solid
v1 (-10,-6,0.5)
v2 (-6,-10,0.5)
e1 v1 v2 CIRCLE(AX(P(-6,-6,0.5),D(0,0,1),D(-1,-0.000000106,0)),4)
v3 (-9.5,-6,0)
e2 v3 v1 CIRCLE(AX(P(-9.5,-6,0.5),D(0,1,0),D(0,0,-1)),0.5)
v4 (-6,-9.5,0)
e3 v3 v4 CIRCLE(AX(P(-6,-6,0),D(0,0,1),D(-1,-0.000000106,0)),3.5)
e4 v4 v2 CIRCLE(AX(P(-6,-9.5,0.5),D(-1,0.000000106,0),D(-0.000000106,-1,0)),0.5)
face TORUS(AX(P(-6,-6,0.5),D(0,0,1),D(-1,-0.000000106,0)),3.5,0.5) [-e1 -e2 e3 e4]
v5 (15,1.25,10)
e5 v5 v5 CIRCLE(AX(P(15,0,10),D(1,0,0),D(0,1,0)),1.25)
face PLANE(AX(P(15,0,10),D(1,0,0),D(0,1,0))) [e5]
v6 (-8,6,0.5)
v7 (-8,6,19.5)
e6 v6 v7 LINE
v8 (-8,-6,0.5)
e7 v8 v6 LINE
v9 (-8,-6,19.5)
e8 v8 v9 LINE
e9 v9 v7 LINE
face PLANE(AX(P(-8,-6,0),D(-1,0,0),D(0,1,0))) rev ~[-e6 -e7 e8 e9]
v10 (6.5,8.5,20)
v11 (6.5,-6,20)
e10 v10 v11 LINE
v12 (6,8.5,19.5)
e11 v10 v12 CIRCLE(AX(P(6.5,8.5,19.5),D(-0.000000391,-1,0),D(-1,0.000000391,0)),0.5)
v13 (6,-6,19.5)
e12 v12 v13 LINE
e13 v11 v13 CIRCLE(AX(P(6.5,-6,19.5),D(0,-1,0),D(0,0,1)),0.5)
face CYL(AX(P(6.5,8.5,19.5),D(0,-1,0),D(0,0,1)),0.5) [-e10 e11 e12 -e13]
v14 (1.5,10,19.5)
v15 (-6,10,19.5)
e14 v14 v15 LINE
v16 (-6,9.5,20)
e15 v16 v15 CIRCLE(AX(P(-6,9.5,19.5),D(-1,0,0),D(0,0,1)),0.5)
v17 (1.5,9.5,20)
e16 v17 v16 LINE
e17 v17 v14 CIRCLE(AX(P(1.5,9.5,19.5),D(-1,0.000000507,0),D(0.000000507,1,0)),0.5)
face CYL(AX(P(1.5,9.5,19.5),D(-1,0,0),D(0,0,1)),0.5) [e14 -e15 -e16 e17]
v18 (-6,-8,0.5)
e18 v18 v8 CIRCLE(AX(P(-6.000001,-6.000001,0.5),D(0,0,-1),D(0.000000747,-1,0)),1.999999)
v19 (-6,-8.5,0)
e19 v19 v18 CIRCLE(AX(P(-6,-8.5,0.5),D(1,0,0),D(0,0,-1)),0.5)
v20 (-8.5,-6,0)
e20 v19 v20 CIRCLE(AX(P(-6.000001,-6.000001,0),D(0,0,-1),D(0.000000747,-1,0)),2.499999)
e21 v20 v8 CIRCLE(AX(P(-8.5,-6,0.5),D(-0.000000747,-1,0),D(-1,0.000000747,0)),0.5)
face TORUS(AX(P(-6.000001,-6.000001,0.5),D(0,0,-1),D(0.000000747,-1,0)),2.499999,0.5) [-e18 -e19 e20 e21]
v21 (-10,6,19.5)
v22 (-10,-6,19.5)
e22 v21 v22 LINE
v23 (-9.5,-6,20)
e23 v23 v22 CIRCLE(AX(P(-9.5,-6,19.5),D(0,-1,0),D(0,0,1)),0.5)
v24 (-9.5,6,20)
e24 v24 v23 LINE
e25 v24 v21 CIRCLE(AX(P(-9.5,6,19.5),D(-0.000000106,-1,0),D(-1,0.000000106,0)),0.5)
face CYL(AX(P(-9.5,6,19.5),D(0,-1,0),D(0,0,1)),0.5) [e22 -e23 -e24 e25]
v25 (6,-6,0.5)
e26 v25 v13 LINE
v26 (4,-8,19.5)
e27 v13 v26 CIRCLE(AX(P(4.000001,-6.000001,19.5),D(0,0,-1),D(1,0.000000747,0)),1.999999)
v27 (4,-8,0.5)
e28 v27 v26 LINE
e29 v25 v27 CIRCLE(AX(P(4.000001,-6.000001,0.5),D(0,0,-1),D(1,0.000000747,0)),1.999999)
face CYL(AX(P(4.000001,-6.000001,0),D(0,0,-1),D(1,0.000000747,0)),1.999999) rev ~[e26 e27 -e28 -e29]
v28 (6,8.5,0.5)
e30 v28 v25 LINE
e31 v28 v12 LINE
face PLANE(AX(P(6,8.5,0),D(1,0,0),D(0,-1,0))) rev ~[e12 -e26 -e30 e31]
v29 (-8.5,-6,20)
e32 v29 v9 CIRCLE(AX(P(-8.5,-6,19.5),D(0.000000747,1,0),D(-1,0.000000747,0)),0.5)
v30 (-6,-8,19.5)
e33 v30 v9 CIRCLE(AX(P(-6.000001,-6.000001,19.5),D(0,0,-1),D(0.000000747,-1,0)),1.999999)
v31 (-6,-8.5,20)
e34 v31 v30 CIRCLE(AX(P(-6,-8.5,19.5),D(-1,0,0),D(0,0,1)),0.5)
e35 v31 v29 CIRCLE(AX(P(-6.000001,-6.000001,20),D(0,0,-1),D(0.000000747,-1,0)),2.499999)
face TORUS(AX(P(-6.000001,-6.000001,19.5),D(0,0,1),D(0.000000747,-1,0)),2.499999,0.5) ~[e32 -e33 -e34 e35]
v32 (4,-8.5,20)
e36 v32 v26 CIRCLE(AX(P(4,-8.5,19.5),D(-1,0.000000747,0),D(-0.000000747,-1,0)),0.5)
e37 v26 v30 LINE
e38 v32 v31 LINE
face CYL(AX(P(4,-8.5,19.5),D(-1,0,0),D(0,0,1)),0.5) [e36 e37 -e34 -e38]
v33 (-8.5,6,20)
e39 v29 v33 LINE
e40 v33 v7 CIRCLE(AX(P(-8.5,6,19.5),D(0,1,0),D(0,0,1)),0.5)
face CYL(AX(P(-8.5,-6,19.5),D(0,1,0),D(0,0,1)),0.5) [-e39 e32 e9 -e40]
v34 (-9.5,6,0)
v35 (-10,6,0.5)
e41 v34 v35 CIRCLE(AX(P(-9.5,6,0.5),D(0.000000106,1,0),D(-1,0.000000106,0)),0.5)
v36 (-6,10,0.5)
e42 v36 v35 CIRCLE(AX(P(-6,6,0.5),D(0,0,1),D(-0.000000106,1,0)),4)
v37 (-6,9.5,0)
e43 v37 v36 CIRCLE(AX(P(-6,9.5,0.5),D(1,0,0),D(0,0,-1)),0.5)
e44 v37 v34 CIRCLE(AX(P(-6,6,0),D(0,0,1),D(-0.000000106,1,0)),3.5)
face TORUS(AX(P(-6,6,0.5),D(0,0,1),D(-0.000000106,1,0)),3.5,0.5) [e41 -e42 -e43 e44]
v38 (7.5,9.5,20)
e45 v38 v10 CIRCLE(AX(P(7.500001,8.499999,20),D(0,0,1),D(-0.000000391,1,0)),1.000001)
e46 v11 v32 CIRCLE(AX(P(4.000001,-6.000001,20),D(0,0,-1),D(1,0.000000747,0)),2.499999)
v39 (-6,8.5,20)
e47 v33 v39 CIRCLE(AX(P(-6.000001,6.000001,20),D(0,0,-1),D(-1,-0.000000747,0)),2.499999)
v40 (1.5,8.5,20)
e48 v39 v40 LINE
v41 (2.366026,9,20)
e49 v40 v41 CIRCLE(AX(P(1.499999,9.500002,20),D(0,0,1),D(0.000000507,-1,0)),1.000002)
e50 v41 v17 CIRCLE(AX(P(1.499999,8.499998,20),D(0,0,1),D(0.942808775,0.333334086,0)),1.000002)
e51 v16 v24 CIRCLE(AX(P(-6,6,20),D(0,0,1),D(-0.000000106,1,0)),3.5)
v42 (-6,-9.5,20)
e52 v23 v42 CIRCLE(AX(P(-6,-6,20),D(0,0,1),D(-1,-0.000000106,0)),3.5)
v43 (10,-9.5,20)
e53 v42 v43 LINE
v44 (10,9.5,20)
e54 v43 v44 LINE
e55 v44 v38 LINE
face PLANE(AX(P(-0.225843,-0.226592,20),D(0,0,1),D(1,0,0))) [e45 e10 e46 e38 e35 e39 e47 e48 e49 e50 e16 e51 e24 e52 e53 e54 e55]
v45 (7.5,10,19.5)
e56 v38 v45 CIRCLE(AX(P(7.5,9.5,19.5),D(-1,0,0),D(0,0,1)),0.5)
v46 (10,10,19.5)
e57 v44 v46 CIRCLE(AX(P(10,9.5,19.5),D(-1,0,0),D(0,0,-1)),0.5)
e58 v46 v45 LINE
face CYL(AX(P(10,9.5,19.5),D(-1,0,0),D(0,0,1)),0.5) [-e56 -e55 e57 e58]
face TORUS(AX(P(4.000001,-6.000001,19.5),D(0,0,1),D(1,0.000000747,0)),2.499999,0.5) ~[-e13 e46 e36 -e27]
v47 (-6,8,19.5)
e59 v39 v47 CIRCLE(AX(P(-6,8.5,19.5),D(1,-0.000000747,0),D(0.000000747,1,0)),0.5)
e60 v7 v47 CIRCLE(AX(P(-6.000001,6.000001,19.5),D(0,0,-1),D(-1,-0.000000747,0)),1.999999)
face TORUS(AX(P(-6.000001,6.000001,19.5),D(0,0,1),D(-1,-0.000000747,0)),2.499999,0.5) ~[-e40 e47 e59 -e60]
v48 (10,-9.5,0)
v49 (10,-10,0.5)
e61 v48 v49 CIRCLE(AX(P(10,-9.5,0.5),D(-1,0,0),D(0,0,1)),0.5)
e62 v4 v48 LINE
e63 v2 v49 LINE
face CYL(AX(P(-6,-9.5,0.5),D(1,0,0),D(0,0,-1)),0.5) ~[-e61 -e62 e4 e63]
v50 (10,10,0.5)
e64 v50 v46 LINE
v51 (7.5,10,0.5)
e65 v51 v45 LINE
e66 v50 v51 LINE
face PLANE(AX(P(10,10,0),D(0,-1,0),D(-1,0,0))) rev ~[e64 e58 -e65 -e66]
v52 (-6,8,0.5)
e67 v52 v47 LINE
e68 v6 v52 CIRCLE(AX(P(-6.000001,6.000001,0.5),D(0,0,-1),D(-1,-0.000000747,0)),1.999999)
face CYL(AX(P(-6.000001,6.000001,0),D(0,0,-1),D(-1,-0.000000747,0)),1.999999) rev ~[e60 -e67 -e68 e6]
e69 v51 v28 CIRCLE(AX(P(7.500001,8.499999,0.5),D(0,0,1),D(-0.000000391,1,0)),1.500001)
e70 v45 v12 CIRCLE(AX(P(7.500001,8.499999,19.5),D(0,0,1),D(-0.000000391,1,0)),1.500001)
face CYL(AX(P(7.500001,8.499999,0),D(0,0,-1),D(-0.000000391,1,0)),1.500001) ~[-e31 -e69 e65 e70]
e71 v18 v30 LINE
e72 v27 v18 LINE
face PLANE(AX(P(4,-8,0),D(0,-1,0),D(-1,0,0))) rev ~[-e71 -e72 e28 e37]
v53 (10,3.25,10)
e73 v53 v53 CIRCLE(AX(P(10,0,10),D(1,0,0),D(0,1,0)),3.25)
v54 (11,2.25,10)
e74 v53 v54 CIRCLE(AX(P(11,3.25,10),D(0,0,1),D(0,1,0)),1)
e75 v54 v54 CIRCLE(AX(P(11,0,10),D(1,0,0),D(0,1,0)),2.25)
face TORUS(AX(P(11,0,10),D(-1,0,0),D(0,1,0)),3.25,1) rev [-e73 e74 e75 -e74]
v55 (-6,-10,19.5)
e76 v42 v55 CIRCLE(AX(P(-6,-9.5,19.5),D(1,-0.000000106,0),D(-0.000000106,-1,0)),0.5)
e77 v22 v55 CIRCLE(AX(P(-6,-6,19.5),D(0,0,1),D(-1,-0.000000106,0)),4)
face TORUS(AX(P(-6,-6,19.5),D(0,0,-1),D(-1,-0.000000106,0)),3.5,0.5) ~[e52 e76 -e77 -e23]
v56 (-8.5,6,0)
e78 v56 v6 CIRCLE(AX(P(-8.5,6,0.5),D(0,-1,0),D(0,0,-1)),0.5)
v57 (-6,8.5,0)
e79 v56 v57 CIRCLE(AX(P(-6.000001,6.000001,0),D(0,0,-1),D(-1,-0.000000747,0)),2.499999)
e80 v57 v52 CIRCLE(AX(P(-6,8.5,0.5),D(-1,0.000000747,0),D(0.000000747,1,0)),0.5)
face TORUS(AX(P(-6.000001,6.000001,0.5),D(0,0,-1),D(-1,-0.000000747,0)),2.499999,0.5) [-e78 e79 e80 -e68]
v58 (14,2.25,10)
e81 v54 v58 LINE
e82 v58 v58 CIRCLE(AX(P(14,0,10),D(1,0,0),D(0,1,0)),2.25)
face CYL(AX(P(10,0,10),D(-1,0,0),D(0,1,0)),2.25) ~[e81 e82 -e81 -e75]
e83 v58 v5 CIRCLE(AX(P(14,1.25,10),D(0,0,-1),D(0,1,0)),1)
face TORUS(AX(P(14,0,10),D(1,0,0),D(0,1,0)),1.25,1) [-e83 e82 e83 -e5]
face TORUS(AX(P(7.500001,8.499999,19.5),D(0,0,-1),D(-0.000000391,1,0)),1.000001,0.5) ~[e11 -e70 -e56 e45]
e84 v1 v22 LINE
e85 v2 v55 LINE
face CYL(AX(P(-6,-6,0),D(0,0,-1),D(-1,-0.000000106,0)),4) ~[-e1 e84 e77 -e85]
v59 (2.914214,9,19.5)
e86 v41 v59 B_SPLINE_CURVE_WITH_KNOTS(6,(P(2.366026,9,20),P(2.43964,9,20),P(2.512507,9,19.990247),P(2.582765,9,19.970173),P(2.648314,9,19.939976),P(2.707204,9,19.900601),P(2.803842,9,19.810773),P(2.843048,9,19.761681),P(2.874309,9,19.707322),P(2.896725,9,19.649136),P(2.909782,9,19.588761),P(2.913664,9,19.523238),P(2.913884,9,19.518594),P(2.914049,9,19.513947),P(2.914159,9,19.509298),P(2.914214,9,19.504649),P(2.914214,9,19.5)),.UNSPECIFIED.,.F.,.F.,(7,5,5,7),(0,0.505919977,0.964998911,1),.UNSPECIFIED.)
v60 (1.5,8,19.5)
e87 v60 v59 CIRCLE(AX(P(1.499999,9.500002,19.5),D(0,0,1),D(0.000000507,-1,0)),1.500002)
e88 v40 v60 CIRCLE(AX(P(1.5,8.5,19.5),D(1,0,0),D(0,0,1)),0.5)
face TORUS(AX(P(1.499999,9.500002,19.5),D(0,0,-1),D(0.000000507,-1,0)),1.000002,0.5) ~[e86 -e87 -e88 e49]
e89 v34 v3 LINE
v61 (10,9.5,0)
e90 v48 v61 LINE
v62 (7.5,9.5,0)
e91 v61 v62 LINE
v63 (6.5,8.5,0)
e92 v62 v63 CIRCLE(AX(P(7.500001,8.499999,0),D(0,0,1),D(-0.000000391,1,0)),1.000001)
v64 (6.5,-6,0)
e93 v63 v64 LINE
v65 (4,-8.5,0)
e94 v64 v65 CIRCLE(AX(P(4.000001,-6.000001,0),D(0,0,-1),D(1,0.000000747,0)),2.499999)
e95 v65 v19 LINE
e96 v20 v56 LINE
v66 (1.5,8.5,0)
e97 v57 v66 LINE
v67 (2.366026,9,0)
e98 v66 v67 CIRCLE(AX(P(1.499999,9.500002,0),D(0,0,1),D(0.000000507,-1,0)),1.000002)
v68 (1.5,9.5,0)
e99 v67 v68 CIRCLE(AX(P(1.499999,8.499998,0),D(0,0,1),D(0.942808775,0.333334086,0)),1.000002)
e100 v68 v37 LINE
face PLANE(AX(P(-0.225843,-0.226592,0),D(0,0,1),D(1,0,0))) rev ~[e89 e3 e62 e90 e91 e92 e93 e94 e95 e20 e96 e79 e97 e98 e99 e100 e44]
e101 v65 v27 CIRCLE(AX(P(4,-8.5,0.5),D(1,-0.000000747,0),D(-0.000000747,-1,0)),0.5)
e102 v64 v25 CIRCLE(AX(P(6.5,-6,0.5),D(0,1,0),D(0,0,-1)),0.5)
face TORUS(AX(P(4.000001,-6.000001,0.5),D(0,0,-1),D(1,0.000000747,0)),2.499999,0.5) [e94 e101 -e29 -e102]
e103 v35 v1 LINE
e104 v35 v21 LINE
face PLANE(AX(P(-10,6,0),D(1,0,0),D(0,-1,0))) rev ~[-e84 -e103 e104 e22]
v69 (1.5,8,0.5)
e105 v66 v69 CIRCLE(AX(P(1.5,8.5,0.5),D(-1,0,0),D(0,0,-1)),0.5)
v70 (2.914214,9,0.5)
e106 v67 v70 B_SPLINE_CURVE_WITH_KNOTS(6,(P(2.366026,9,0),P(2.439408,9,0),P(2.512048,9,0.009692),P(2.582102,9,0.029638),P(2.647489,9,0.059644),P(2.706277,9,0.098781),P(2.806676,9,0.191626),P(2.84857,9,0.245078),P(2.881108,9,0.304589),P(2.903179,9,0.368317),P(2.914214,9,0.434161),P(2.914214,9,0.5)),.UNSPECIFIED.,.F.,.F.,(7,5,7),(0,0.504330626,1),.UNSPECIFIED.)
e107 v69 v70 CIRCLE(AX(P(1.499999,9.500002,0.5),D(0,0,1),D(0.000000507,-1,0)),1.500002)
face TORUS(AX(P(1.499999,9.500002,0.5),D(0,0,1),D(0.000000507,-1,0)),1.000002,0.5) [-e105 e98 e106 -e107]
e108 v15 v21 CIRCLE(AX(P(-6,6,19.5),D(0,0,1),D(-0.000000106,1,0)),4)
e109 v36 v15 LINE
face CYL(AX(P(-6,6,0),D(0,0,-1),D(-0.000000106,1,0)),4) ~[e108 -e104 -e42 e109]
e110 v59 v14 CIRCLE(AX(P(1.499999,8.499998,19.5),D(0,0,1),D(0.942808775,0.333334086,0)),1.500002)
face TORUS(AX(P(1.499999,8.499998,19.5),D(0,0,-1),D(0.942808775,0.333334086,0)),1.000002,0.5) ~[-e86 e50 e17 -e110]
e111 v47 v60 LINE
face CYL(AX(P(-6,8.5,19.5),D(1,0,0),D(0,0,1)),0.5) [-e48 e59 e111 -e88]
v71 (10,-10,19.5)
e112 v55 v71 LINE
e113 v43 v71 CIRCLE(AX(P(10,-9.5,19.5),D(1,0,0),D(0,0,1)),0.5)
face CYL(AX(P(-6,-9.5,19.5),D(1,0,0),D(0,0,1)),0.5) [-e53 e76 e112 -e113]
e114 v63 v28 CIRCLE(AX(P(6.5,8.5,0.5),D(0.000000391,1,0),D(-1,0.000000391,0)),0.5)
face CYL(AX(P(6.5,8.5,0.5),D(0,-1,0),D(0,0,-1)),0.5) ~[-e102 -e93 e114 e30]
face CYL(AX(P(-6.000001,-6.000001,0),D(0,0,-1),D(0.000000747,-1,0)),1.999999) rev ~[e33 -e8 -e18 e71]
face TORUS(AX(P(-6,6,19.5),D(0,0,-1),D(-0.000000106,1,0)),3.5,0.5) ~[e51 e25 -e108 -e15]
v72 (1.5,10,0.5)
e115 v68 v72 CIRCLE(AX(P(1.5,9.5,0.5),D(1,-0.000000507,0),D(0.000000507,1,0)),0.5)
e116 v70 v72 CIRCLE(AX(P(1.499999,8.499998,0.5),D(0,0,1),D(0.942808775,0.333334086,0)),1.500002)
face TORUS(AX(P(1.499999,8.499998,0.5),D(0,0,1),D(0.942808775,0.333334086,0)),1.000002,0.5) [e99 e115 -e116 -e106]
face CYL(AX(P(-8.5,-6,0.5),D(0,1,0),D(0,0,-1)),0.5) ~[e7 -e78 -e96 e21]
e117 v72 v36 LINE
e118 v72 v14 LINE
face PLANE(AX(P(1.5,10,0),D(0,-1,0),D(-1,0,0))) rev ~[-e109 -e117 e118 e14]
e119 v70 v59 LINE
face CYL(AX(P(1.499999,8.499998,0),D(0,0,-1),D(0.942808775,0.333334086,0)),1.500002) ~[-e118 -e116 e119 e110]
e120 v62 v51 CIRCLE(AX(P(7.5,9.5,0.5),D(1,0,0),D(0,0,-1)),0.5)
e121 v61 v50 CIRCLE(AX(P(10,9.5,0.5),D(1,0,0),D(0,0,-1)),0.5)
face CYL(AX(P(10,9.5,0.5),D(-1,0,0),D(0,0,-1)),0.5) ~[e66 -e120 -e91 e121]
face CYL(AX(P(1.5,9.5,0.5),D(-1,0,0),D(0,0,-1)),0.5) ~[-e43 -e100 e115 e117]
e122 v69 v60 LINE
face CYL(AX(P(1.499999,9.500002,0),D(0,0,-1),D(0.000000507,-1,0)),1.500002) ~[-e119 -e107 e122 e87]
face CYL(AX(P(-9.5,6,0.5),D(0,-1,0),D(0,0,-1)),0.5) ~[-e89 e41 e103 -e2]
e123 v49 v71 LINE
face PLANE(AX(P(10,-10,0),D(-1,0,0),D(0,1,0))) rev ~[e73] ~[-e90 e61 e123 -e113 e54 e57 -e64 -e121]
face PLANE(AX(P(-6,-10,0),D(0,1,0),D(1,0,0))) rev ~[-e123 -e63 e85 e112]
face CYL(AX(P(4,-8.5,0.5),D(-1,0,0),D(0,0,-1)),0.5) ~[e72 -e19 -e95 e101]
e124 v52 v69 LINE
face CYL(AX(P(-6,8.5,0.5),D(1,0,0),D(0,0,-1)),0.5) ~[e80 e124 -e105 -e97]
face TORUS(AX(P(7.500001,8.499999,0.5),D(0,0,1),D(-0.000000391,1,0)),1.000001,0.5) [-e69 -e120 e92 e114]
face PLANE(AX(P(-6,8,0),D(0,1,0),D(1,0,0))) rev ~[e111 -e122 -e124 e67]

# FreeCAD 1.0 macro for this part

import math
import FreeCAD as App
import Part
import Sketcher

V = App.Vector
Q = App.Units.Quantity


def edges_at(feature, points):
    """Names of the edges that pass closest to the given points."""
    edges = feature.Shape.Edges
    near = lambda p: min(range(len(edges)), key=lambda i: edges[i].distToShape(Part.Vertex(*p))[0])
    return sorted({f"Edge{near(p) + 1}" for p in points})

doc = App.newDocument("Part")
body = doc.addObject("PartDesign::Body", "Body")

# Sketch on XY plane
sketch1 = body.newObject("Sketcher::SketchObject", "Sketch")
sketch1.AttachmentSupport = (doc.getObject("XY_Plane"), [""])
sketch1.MapMode = "FlatFace"
sketch1.addGeometry(Part.LineSegment(V(-6, -10, 0), V(10, -10, 0)), False)
sketch1.addGeometry(Part.LineSegment(V(10, -10, 0), V(10, 10, 0)), False)
sketch1.addGeometry(Part.LineSegment(V(10, 10, 0), V(7.5, 10, 0)), False)
sketch1.addGeometry(Part.ArcOfCircle(Part.Circle(V(7.500001, 8.499999, 0), V(0, 0, 1), 1.500001), math.radians(90.000022), math.radians(179.999978)), False)
sketch1.addGeometry(Part.LineSegment(V(6, 8.5, 0), V(6, -6, 0)), False)
sketch1.addGeometry(Part.ArcOfCircle(Part.Circle(V(4.000001, -6.000001, 0), V(0, 0, 1), 1.999999), math.radians(-90.000043), math.radians(0.000043)), False)
sketch1.addGeometry(Part.LineSegment(V(4, -8, 0), V(-6, -8, 0)), False)
sketch1.addGeometry(Part.ArcOfCircle(Part.Circle(V(-6.000001, -6.000001, 0), V(0, 0, 1), 1.999999), math.radians(179.999957), math.radians(270.000043)), False)
sketch1.addGeometry(Part.LineSegment(V(-8, -6, 0), V(-8, 6, 0)), False)
sketch1.addGeometry(Part.ArcOfCircle(Part.Circle(V(-6.000001, 6.000001, 0), V(0, 0, 1), 1.999999), math.radians(89.999957), math.radians(180.000043)), False)
sketch1.addGeometry(Part.LineSegment(V(-6, 8, 0), V(1.5, 8, 0)), False)
sketch1.addGeometry(Part.ArcOfCircle(Part.Circle(V(1.499999, 9.500002, 0), V(0, 0, 1), 1.500002), math.radians(-89.999971), math.radians(-19.471266)), False)
sketch1.addGeometry(Part.ArcOfCircle(Part.Circle(V(1.499999, 8.499998, 0), V(0, 0, 1), 1.500002), math.radians(19.471266), math.radians(89.999971)), False)
sketch1.addGeometry(Part.LineSegment(V(1.5, 10, 0), V(-6, 10, 0)), False)
sketch1.addGeometry(Part.ArcOfCircle(Part.Circle(V(-6, 6, 0), V(0, 0, 1), 4), math.radians(90.000006), math.radians(179.999994)), False)
sketch1.addGeometry(Part.LineSegment(V(-10, 6, 0), V(-10, -6, 0)), False)
sketch1.addGeometry(Part.ArcOfCircle(Part.Circle(V(-6, -6, 0), V(0, 0, 1), 4), math.radians(-179.999994), math.radians(-90.000006)), False)
sketch1.addConstraint(Sketcher.Constraint("Coincident", 0, 2, 1, 1))
sketch1.addConstraint(Sketcher.Constraint("Coincident", 1, 2, 2, 1))
sketch1.addConstraint(Sketcher.Constraint("Tangent", 2, 2, 3, 1))
sketch1.addConstraint(Sketcher.Constraint("Tangent", 3, 2, 4, 1))
sketch1.addConstraint(Sketcher.Constraint("Tangent", 4, 2, 5, 2))
sketch1.addConstraint(Sketcher.Constraint("Tangent", 5, 1, 6, 1))
sketch1.addConstraint(Sketcher.Constraint("Tangent", 6, 2, 7, 2))
sketch1.addConstraint(Sketcher.Constraint("Tangent", 7, 1, 8, 1))
sketch1.addConstraint(Sketcher.Constraint("Tangent", 8, 2, 9, 2))
sketch1.addConstraint(Sketcher.Constraint("Tangent", 9, 1, 10, 1))
sketch1.addConstraint(Sketcher.Constraint("Tangent", 10, 2, 11, 1))
sketch1.addConstraint(Sketcher.Constraint("Coincident", 11, 2, 12, 1))
sketch1.addConstraint(Sketcher.Constraint("Tangent", 12, 2, 13, 1))
sketch1.addConstraint(Sketcher.Constraint("Tangent", 13, 2, 14, 1))
sketch1.addConstraint(Sketcher.Constraint("Tangent", 14, 2, 15, 1))
sketch1.addConstraint(Sketcher.Constraint("Tangent", 15, 2, 16, 1))
sketch1.addConstraint(Sketcher.Constraint("Tangent", 16, 2, 0, 1))
sketch1.addConstraint(Sketcher.Constraint("Horizontal", 0))
sketch1.addConstraint(Sketcher.Constraint("Vertical", 1))
sketch1.addConstraint(Sketcher.Constraint("Horizontal", 2))
sketch1.addConstraint(Sketcher.Constraint("Vertical", 4))
sketch1.addConstraint(Sketcher.Constraint("Horizontal", 6))
sketch1.addConstraint(Sketcher.Constraint("Vertical", 8))
sketch1.addConstraint(Sketcher.Constraint("Horizontal", 10))
sketch1.addConstraint(Sketcher.Constraint("Horizontal", 13))
sketch1.addConstraint(Sketcher.Constraint("Vertical", 15))
sketch1.addConstraint(Sketcher.Constraint("Coincident", 14, 3, 9, 3))
sketch1.addConstraint(Sketcher.Constraint("Coincident", 16, 3, 7, 3))
sketch1.addConstraint(Sketcher.Constraint("Equal", 5, 7))
sketch1.addConstraint(Sketcher.Constraint("Equal", 7, 9))
sketch1.addConstraint(Sketcher.Constraint("Equal", 3, 11))
sketch1.addConstraint(Sketcher.Constraint("Equal", 11, 12))
sketch1.addConstraint(Sketcher.Constraint("Horizontal", 3, 3, 12, 3))
sketch1.addConstraint(Sketcher.Constraint("Vertical", 11, 3, 12, 3))
sketch1.addConstraint(Sketcher.Constraint("Radius", 5, Q("1.999999 mm")))
sketch1.addConstraint(Sketcher.Constraint("Radius", 14, Q("4 mm")))
sketch1.addConstraint(Sketcher.Constraint("Radius", 3, Q("1.500001 mm")))
sketch1.addConstraint(Sketcher.Constraint("DistanceX", 0, 1, 0, 2, Q("16 mm")))
sketch1.addConstraint(Sketcher.Constraint("DistanceX", 6, 2, 6, 1, Q("10 mm")))
sketch1.addConstraint(Sketcher.Constraint("DistanceY", 1, 1, 1, 2, Q("20 mm")))
sketch1.addConstraint(Sketcher.Constraint("DistanceX", 10, 1, 10, 2, Q("7.5 mm")))
sketch1.addConstraint(Sketcher.Constraint("DistanceX", -1, 1, 5, 3, Q("4.000001 mm")))
sketch1.addConstraint(Sketcher.Constraint("DistanceY", 5, 3, -1, 1, Q("6.000001 mm")))
pad1 = body.newObject("PartDesign::Pad", "Pad")
pad1.Profile = sketch1
pad1.Length = 20

# Sketch on YZ plane
sketch2 = body.newObject("Sketcher::SketchObject", "Sketch001")
sketch2.AttachmentSupport = (doc.getObject("YZ_Plane"), [""])
sketch2.MapMode = "FlatFace"
sketch2.AttachmentOffset = App.Placement(V(0, 0, 10), App.Rotation())
sketch2.addGeometry(Part.Circle(V(0, 10, 0), V(0, 0, 1), 2.25), False)
sketch2.addConstraint(Sketcher.Constraint("PointOnObject", 0, 3, -2))
sketch2.addConstraint(Sketcher.Constraint("Diameter", 0, Q("4.5 mm")))
sketch2.addConstraint(Sketcher.Constraint("DistanceY", -1, 1, 0, 3, Q("10 mm")))
pad2 = body.newObject("PartDesign::Pad", "Pad001")
pad2.Profile = sketch2
pad2.Length = 5
doc.recompute()

fillet = body.newObject("PartDesign::Fillet", "Fillet")
fillet.Base = (pad2, edges_at(pad2, [(15, -2.25, 10), (10, -2.25, 10)]))
fillet.Radius = 1
doc.recompute()

fillet2 = body.newObject("PartDesign::Fillet", "Fillet001")
fillet2.Base = (fillet, edges_at(fillet, [
    (-8, 0, 20),
    (-8, 0, 0),
    (-10, 0, 20),
    (-10, 0, 0),
]))
fillet2.Radius = 0.5

doc.recompute()
